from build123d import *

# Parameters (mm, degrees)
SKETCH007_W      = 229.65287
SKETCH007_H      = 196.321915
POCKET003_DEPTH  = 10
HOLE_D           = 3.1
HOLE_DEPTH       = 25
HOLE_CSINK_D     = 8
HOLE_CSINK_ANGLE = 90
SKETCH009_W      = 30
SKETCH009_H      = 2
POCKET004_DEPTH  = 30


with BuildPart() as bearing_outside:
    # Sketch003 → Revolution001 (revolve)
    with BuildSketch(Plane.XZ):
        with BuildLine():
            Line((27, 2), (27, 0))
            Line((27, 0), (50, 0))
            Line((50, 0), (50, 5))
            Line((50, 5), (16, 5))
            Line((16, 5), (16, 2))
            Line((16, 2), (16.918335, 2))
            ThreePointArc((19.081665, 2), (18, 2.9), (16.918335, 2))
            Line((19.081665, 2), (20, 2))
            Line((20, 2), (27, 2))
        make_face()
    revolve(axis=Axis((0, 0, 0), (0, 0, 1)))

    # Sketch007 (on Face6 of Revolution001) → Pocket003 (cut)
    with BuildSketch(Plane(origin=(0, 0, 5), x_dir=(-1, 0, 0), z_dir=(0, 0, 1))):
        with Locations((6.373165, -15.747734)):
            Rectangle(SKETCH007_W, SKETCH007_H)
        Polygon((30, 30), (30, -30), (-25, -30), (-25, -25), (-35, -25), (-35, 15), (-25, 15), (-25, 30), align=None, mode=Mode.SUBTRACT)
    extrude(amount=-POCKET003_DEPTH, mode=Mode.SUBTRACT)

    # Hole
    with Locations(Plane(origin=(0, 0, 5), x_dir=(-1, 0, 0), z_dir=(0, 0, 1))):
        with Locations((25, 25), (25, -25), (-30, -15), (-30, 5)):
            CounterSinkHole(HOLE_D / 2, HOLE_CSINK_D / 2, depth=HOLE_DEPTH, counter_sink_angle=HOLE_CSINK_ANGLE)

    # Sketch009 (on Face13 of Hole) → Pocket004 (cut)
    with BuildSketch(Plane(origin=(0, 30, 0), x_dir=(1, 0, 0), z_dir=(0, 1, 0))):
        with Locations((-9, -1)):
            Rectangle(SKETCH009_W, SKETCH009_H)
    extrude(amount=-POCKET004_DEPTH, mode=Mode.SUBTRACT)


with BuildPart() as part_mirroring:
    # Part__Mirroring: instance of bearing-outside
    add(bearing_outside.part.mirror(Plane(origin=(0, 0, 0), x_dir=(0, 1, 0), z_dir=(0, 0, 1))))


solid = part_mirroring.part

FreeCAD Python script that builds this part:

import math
import FreeCAD as App
import Part
import Sketcher
Q = App.Units.Quantity


def add_polygon(sketch, points):
    """Adds a closed chain of lines whose ends are joined by coincident constraints."""
    first, n = sketch.GeometryCount, len(points)
    for a, b in zip(points, points[1:] + points[:1]):
        sketch.addGeometry(Part.LineSegment(App.Vector(*a, 0), App.Vector(*b, 0)), False)
    for i in range(n):
        sketch.addConstraint(Sketcher.Constraint("Coincident", first + i, 2, first + (i + 1) % n, 1))

doc = App.newDocument("Part")
body = doc.addObject("PartDesign::Body", "Body")

# Sketch on XZ plane
sketch1 = doc.addObject("Sketcher::SketchObject", "Sketch")
body.addObject(sketch1)
sketch1.AttachmentSupport = (doc.XZ_Plane, [""])
sketch1.MapMode = "FlatFace"
sketch1.addGeometry([
    Part.LineSegment(App.Vector(27, 2, 0), App.Vector(27, 0, 0)),  # 0
    Part.LineSegment(App.Vector(27, 0, 0), App.Vector(50, 0, 0)),  # 1
    Part.LineSegment(App.Vector(50, 0, 0), App.Vector(50, 5, 0)),  # 2
    Part.LineSegment(App.Vector(50, 5, 0), App.Vector(16, 5, 0)),  # 3
    Part.LineSegment(App.Vector(16, 5, 0), App.Vector(16, 2, 0)),  # 4
    Part.LineSegment(App.Vector(16, 2, 0), App.Vector(16.9, 2, 0)),  # 5
    Part.ArcOfCircle(Part.Circle(App.Vector(18, 1.8, 0), App.Vector(0, 0, 1), 1.1), math.radians(10), math.radians(170)),  # 6
    Part.LineSegment(App.Vector(19.1, 2, 0), App.Vector(27, 2, 0)),  # 7
], False)
sketch1.addConstraint([
    Sketcher.Constraint("Coincident", 0, 2, 1, 1),
    Sketcher.Constraint("Coincident", 1, 2, 2, 1),
    Sketcher.Constraint("Coincident", 2, 2, 3, 1),
    Sketcher.Constraint("Coincident", 3, 2, 4, 1),
    Sketcher.Constraint("Coincident", 4, 2, 5, 1),
    Sketcher.Constraint("Coincident", 5, 2, 6, 2),
    Sketcher.Constraint("Coincident", 6, 1, 7, 1),
    Sketcher.Constraint("Coincident", 7, 2, 0, 1),
    Sketcher.Constraint("Vertical", 0),
    Sketcher.Constraint("Horizontal", 1),
    Sketcher.Constraint("Vertical", 2),
    Sketcher.Constraint("Horizontal", 3),
    Sketcher.Constraint("Vertical", 4),
    Sketcher.Constraint("Horizontal", 5),
    Sketcher.Constraint("Horizontal", 7),
    Sketcher.Constraint("PointOnObject", 0, 2, -1),
    Sketcher.Constraint("Horizontal", 5, 2, 6, 1),
    Sketcher.Constraint("Radius", 6, Q("1.1 mm")),
    Sketcher.Constraint("DistanceX", 1, 1, 1, 2, Q("23 mm")),
    Sketcher.Constraint("DistanceX", 3, 2, 3, 1, Q("34 mm")),
    Sketcher.Constraint("DistanceY", 0, 2, 0, 1, Q("2 mm")),
    Sketcher.Constraint("DistanceY", 2, 1, 2, 2, Q("5 mm")),
    Sketcher.Constraint("DistanceX", -1, 1, 6, 3, Q("18 mm")),
    Sketcher.Constraint("DistanceX", -1, 1, 0, 2, Q("27 mm")),
    Sketcher.Constraint("DistanceY", -1, 1, 6, 3, Q("1.8 mm")),
])
revolution = doc.addObject("PartDesign::Revolution", "Revolution")
body.addObject(revolution)
revolution.Profile = sketch1
revolution.ReferenceAxis = (sketch1, ["V_Axis"])
revolution.Angle = 360

# Sketch on XY plane
sketch2 = doc.addObject("Sketcher::SketchObject", "Sketch001")
body.addObject(sketch2)
sketch2.AttachmentSupport = (doc.XY_Plane, [""])
sketch2.MapMode = "FlatFace"
sketch2.AttachmentOffset = App.Placement(App.Vector(0, 0, 5), App.Rotation())
add_polygon(sketch2, [(108, -82), (108, 114), (-121, 114), (-121, -82)])  # lines 0-3
add_polygon(sketch2, [(25, -30), (-30, -30), (-30, 30), (25, 30), (25, 25), (35, 25), (35, -15), (25, -15)])  # lines 4-11
sketch2.addConstraint([
    Sketcher.Constraint("Vertical", 0),
    Sketcher.Constraint("Horizontal", 1),
    Sketcher.Constraint("Vertical", 2),
    Sketcher.Constraint("Horizontal", 3),
    Sketcher.Constraint("Horizontal", 4),
    Sketcher.Constraint("Vertical", 5),
    Sketcher.Constraint("Horizontal", 6),
    Sketcher.Constraint("Vertical", 7),
    Sketcher.Constraint("Horizontal", 8),
    Sketcher.Constraint("Vertical", 9),
    Sketcher.Constraint("Horizontal", 10),
    Sketcher.Constraint("Vertical", 11),
    Sketcher.Constraint("Symmetric", 6, 2, 11, 2, -1),
    Sketcher.Constraint("DistanceX", 4, 2, 4, 1, Q("55 mm")),
    Sketcher.Constraint("DistanceX", 8, 1, 8, 2, Q("10 mm")),
    Sketcher.Constraint("DistanceY", 5, 1, 5, 2, Q("60 mm")),
    Sketcher.Constraint("DistanceY", 7, 2, 7, 1, Q("5 mm")),
    Sketcher.Constraint("DistanceY", 9, 2, 9, 1, Q("40 mm")),
    Sketcher.Constraint("DistanceX", 4, 2, -1, 1, Q("30 mm")),
    Sketcher.Constraint("DistanceX", 1, 2, 1, 1, Q("229.65287 mm")),
    Sketcher.Constraint("DistanceX", 1, 2, -1, 1, Q("121.1996 mm")),
    Sketcher.Constraint("DistanceY", 0, 1, 0, 2, Q("196.321915 mm")),
    Sketcher.Constraint("DistanceY", -1, 1, 0, 2, Q("113.908692 mm")),
])
pocket1 = doc.addObject("PartDesign::Pocket", "Pocket")
body.addObject(pocket1)
pocket1.Profile = sketch2
pocket1.Length = 10

# Sketch on XY plane
sketch3 = doc.addObject("Sketcher::SketchObject", "Sketch002")
body.addObject(sketch3)
sketch3.AttachmentSupport = (doc.XY_Plane, [""])
sketch3.MapMode = "FlatFace"
sketch3.AttachmentOffset = App.Placement(App.Vector(0, 0, 5), App.Rotation())
sketch3.addGeometry([
    Part.Circle(App.Vector(-25, -25, 0), App.Vector(0, 0, 1), 1.6),
    Part.Circle(App.Vector(-25, 25, 0), App.Vector(0, 0, 1), 1.6),
    Part.Circle(App.Vector(30, 15, 0), App.Vector(0, 0, 1), 1.6),
    Part.Circle(App.Vector(30, -5, 0), App.Vector(0, 0, 1), 1.6),
], False)
sketch3.addConstraint([
    Sketcher.Constraint("Equal", 0, 1),
    Sketcher.Constraint("Equal", 1, 2),
    Sketcher.Constraint("Equal", 2, 3),
    Sketcher.Constraint("Symmetric", 0, 3, 1, 3, -1),
    Sketcher.Constraint("Vertical", 2, 3, 3, 3),
    Sketcher.Constraint("Diameter", 0, Q("3.1 mm")),
    Sketcher.Constraint("DistanceX", 0, 3, -1, 1, Q("25 mm")),
    Sketcher.Constraint("DistanceY", 0, 3, -1, 1, Q("25 mm")),
    Sketcher.Constraint("DistanceX", -1, 1, 2, 3, Q("30 mm")),
    Sketcher.Constraint("DistanceY", -1, 1, 2, 3, Q("15 mm")),
    Sketcher.Constraint("DistanceY", 3, 3, -1, 1, Q("5 mm")),
])
doc.recompute()
hole = doc.addObject("PartDesign::Hole", "Hole")
body.addObject(hole)
hole.Profile = sketch3
hole.ThreadType = "None"
hole.Diameter = 3.1
hole.DepthType = "Dimension"
hole.Depth = 25
hole.DrillPoint = "Flat"
hole.HoleCutType = "Countersink"
hole.HoleCutDiameter = 8
hole.HoleCutCountersinkAngle = 90

# Sketch on XZ plane
sketch4 = doc.addObject("Sketcher::SketchObject", "Sketch003")
body.addObject(sketch4)
sketch4.AttachmentSupport = (doc.XZ_Plane, [""])
sketch4.MapMode = "FlatFace"
sketch4.AttachmentOffset = App.Placement(App.Vector(0, 0, -30), App.Rotation())
add_polygon(sketch4, [(-24, 0), (-24, 2), (6, 2), (6, 0)])  # lines 0-3
sketch4.addConstraint([
    Sketcher.Constraint("Vertical", 0),
    Sketcher.Constraint("Horizontal", 1),
    Sketcher.Constraint("Vertical", 2),
    Sketcher.Constraint("Horizontal", 3),
    Sketcher.Constraint("PointOnObject", 2, 2, -1),
    Sketcher.Constraint("DistanceX", 1, 1, 1, 2, Q("30 mm")),
    Sketcher.Constraint("DistanceY", 0, 1, 0, 2, Q("2 mm")),
    Sketcher.Constraint("DistanceX", 0, 2, -1, 1, Q("24 mm")),
])
pocket2 = doc.addObject("PartDesign::Pocket", "Pocket001")
body.addObject(pocket2)
pocket2.Profile = sketch4
pocket2.Length = 30
pocket2.Reversed = True
body2 = doc.addObject("PartDesign::Body", "Body001")
doc.recompute()

mirroring = doc.addObject("Part::Mirroring", "Mirroring")
mirroring.Source = body
mirroring.Base = App.Vector(0, 0, 0)
mirroring.Normal = App.Vector(0, 0, 1)
body2.BaseFeature = mirroring
doc.recompute()
body.Visibility = False
mirroring.Visibility = False

doc.recompute()
